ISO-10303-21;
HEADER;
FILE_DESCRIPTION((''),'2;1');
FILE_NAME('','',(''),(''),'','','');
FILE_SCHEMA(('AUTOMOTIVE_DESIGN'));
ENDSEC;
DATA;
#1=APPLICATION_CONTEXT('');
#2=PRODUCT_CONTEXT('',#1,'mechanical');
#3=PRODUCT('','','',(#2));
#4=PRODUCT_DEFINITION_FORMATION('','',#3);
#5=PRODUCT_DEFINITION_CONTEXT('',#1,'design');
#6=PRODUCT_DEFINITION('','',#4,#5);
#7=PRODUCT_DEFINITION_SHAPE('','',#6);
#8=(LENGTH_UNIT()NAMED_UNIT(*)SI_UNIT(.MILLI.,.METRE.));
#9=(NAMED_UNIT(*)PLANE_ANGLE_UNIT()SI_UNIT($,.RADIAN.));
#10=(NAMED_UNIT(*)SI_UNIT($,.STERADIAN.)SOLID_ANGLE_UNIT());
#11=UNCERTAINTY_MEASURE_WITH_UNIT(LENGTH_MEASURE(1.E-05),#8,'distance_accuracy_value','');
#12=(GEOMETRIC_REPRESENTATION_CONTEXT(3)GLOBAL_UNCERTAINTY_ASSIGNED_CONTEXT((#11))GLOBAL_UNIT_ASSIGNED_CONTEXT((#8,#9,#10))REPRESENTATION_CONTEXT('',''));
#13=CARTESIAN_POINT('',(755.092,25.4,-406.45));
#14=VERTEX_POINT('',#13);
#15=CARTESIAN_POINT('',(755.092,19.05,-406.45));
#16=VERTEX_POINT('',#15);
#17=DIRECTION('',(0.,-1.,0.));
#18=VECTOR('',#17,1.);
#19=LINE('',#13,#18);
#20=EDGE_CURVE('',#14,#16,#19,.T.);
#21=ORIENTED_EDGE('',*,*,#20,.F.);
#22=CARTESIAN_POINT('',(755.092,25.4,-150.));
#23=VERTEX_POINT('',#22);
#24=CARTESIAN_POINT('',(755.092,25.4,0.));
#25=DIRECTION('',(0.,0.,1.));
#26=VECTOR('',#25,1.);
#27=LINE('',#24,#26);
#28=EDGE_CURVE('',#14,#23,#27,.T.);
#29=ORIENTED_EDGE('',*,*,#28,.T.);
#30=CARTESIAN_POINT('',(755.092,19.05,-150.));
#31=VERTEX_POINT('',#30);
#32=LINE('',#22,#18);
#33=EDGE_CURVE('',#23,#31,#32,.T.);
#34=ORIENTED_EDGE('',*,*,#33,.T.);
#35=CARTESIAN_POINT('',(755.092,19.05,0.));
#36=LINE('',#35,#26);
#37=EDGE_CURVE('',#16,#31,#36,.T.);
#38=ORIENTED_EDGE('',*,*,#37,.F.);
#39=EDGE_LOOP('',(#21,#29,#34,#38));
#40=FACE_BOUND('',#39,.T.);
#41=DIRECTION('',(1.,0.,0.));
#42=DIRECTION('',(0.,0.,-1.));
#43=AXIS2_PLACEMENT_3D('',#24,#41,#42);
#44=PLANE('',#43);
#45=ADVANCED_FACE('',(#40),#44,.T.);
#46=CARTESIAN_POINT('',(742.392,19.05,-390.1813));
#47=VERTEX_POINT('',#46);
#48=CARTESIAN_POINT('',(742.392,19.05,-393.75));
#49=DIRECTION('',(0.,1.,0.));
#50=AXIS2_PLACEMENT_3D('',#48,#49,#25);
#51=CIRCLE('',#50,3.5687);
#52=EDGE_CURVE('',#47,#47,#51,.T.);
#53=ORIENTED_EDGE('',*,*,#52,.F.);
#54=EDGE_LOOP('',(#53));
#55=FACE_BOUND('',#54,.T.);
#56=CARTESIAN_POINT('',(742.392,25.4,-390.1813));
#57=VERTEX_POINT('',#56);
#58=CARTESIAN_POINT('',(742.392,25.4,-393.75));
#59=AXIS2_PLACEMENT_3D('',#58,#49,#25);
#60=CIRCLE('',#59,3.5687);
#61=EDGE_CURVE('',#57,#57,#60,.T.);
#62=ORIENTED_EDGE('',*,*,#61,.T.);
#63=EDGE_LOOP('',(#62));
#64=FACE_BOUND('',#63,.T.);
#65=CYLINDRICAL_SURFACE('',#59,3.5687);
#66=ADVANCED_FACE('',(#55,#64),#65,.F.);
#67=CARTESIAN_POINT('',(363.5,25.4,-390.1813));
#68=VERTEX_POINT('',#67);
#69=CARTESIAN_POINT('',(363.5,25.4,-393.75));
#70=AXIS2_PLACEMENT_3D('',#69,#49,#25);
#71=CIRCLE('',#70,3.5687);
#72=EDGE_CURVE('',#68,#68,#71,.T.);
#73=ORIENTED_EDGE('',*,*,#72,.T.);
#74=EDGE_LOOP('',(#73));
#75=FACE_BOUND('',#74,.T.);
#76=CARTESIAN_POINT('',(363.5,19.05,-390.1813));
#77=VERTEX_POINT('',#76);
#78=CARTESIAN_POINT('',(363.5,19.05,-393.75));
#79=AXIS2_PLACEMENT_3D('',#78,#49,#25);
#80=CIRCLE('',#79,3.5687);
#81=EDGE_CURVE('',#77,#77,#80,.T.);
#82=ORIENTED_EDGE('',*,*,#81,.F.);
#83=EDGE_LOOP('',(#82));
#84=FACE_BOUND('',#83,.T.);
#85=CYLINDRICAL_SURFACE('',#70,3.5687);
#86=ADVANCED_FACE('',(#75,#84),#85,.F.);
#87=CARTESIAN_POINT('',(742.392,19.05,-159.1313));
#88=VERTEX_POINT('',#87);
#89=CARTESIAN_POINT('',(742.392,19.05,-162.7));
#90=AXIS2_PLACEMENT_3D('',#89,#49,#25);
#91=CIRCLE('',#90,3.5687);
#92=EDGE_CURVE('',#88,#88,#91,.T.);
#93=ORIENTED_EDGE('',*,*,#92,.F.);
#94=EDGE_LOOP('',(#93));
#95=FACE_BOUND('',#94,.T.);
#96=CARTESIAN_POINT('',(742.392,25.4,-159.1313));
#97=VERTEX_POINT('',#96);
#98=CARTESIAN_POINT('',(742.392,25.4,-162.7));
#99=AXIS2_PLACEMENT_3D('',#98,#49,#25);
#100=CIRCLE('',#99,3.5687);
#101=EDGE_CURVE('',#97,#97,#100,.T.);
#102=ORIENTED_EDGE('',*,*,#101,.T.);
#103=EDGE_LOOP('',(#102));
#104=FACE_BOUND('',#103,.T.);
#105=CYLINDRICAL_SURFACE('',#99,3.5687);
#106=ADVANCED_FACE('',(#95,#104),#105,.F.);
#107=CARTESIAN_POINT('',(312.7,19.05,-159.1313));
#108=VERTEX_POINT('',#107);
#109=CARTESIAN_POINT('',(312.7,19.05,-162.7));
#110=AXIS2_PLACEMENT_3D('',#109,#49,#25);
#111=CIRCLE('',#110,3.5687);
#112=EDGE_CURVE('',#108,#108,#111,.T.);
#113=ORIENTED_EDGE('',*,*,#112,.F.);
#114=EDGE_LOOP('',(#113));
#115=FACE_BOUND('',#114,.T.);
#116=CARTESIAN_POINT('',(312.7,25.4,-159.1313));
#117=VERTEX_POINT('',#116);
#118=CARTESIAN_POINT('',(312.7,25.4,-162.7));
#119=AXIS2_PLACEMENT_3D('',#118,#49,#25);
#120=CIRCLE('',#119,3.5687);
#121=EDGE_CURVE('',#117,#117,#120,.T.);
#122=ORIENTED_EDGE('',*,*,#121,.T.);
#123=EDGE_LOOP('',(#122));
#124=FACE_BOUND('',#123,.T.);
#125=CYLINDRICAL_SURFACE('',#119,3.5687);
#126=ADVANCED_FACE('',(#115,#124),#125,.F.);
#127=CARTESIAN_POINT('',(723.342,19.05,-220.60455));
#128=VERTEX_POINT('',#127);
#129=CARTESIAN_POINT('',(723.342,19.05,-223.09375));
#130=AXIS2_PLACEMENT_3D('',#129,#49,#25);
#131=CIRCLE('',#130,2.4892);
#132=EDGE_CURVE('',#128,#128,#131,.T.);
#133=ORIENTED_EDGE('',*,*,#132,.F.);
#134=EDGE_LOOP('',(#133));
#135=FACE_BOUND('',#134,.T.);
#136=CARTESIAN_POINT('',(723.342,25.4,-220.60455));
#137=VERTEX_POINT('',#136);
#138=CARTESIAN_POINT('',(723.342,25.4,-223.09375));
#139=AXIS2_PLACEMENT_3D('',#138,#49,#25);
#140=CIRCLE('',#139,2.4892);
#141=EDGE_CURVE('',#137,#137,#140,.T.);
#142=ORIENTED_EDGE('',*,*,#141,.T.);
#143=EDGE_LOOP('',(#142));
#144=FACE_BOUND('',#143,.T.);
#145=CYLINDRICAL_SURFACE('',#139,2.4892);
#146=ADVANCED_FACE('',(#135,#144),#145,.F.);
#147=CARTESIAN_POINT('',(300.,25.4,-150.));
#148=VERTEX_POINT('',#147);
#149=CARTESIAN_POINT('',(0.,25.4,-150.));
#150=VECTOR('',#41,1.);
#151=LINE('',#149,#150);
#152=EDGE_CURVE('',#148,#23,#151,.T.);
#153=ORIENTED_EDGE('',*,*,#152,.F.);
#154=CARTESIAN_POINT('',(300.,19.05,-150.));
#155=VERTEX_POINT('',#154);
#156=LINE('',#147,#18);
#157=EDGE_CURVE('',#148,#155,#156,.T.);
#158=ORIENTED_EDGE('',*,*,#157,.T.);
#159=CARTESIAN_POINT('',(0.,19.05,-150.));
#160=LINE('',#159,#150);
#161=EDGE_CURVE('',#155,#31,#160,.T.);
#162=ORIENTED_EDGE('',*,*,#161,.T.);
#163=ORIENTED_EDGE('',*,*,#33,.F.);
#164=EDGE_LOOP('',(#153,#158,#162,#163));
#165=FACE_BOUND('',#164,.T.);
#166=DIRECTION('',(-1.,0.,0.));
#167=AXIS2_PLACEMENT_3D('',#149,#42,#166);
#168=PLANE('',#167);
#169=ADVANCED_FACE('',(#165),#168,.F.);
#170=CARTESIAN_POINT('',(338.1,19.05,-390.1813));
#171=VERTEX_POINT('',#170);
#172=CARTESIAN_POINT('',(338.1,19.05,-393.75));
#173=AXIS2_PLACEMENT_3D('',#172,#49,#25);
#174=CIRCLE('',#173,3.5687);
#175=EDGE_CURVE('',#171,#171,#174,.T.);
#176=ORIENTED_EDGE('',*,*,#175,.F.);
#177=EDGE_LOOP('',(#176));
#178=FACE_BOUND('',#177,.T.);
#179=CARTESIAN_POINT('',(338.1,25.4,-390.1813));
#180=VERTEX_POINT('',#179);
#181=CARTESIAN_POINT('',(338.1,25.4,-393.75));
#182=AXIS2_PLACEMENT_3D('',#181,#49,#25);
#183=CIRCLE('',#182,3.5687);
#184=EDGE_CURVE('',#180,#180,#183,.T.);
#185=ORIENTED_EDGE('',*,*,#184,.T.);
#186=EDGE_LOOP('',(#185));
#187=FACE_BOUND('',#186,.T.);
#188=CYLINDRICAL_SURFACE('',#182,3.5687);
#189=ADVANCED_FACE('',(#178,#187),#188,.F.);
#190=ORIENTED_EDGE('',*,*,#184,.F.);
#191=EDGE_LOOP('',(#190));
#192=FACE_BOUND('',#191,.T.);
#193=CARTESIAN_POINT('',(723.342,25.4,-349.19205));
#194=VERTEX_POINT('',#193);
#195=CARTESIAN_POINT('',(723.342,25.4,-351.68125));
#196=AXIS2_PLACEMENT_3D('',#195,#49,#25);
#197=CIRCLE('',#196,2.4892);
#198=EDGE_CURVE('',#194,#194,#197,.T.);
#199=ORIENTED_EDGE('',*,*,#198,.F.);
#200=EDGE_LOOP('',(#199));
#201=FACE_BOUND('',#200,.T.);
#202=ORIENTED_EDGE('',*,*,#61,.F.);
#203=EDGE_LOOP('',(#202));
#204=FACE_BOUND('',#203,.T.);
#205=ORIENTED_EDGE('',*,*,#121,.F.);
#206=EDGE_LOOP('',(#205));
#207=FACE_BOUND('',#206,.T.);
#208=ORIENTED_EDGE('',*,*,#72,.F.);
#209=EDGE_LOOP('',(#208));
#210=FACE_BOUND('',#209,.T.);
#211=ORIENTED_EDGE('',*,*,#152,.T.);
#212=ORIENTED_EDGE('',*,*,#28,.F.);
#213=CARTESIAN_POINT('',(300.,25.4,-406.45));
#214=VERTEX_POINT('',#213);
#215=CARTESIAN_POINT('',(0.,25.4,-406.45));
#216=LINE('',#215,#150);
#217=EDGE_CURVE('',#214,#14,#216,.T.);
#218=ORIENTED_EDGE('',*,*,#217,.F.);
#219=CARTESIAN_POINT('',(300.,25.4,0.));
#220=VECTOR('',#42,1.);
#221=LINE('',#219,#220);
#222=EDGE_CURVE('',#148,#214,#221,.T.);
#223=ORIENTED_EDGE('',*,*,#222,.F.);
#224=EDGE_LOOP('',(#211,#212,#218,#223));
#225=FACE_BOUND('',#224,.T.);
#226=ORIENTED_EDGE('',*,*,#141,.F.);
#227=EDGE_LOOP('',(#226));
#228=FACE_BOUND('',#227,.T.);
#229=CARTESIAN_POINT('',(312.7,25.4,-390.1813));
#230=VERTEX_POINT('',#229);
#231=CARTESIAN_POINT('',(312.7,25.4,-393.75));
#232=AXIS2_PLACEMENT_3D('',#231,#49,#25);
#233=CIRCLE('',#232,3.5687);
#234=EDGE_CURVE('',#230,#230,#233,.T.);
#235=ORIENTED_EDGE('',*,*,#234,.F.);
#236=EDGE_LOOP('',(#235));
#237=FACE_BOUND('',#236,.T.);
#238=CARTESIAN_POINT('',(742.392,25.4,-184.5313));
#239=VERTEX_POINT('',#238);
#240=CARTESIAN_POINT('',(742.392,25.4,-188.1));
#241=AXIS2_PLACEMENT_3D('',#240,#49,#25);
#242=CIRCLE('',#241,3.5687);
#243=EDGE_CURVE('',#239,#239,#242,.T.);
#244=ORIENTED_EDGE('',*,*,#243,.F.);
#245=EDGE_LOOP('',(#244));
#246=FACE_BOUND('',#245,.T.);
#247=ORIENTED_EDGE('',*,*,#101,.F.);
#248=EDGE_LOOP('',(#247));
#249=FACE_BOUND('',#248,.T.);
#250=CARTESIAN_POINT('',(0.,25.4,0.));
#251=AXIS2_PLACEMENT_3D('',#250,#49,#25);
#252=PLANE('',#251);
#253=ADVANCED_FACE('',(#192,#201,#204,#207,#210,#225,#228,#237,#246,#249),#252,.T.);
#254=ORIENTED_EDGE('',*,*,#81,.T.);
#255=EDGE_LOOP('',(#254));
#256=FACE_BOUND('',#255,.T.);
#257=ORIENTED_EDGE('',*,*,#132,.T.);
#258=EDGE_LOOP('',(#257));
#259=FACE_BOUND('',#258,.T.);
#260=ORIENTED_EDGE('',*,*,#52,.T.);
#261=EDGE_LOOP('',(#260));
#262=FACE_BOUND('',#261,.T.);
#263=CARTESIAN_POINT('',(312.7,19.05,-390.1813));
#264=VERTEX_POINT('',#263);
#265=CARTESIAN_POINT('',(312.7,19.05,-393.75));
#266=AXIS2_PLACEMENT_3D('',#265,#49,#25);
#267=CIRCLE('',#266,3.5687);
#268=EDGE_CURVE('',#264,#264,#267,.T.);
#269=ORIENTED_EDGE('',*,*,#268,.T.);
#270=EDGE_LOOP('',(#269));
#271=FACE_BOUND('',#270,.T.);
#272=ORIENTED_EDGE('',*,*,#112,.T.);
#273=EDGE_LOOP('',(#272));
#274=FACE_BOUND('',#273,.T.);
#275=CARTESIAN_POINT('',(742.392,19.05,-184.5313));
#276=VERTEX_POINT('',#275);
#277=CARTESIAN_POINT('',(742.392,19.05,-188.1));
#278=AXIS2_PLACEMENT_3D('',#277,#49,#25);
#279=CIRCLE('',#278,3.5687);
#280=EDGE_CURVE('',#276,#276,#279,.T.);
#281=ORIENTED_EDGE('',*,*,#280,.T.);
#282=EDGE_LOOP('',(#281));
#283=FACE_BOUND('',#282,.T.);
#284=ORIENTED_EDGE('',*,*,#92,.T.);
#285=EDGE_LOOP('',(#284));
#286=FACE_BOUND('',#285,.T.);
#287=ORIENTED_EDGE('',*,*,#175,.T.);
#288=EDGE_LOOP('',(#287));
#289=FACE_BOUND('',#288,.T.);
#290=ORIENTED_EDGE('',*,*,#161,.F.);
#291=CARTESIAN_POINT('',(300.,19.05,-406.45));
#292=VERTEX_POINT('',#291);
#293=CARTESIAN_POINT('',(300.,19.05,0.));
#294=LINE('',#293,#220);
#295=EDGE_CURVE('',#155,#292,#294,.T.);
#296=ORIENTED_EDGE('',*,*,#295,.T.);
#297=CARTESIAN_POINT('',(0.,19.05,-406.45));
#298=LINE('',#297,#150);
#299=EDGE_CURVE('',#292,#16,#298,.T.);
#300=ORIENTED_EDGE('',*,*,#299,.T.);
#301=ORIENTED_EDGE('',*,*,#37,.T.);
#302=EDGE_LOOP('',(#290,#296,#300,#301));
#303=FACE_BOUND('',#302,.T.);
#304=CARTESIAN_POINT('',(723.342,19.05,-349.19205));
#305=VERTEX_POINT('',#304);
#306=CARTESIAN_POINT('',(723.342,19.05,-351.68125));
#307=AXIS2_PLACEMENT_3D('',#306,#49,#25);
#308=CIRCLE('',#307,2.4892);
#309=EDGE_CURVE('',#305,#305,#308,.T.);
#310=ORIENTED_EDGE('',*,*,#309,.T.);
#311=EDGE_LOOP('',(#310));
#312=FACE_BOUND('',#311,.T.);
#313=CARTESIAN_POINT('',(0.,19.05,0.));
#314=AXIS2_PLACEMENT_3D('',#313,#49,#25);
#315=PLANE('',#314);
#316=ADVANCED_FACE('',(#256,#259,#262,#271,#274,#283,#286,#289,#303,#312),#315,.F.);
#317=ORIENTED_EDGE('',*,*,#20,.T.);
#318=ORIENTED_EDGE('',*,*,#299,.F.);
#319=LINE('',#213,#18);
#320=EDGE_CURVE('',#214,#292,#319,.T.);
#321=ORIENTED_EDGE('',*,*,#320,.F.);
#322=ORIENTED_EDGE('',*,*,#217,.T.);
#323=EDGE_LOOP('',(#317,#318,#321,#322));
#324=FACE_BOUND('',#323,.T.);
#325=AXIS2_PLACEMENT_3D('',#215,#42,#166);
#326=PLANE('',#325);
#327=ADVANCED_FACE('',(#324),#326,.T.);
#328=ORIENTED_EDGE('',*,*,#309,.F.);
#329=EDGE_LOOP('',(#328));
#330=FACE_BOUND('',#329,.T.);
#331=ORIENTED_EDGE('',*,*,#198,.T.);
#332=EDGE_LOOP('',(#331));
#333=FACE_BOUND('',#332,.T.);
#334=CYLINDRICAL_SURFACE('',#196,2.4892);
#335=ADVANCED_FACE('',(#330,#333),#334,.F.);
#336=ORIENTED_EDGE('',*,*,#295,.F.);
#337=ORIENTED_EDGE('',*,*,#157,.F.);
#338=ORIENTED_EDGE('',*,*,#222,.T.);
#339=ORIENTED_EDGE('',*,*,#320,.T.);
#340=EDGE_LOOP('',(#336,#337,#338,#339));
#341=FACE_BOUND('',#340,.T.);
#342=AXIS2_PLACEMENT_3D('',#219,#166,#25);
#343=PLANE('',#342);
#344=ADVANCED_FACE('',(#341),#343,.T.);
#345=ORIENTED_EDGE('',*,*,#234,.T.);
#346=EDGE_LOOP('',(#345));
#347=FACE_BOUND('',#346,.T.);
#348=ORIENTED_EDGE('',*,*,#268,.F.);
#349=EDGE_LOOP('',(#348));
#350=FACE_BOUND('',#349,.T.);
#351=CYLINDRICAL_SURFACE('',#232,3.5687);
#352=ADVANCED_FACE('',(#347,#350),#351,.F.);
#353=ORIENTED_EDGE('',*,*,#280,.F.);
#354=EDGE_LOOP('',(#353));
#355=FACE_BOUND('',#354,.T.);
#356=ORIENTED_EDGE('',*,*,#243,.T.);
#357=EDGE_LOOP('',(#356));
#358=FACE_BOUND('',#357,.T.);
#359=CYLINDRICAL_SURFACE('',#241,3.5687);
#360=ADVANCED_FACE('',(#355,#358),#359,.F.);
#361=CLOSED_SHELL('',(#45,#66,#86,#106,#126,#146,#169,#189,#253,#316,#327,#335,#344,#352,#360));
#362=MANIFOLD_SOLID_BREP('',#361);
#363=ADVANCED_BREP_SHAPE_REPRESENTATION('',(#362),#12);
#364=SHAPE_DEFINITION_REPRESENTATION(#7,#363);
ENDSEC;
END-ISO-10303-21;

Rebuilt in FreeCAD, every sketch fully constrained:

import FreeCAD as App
import Part
import Sketcher
Q = App.Units.Quantity


def edges_at(feature, points):
    """Names of the edges that pass closest to the given points."""
    edges = feature.Shape.Edges
    near = lambda p: min(range(len(edges)), key=lambda i: edges[i].distToShape(Part.Vertex(*p))[0])
    return sorted({f"Edge{near(p) + 1}" for p in points})


def add_polygon(sketch, points):
    """Adds a closed chain of lines whose ends are joined by coincident constraints."""
    first, n = sketch.GeometryCount, len(points)
    for a, b in zip(points, points[1:] + points[:1]):
        sketch.addGeometry(Part.LineSegment(App.Vector(*a, 0), App.Vector(*b, 0)), False)
    for i in range(n):
        sketch.addConstraint(Sketcher.Constraint("Coincident", first + i, 2, first + (i + 1) % n, 1))

doc = App.newDocument("Part")
body = doc.addObject("PartDesign::Body", "Body")

sketch1 = doc.addObject("Sketcher::SketchObject", "Sketch")
body.addObject(sketch1)
sketch1.AttachmentSupport = (doc.XZ_Plane, [""])
sketch1.MapMode = "FlatFace"
sketch1.AttachmentOffset = App.Placement(App.Vector(0, 0, -0.75 * 25.4), App.Rotation())
add_polygon(sketch1, [(-300, -406.45), (-300, -150), (300, -150), (300, -406.45)])
sketch1.addConstraint(Sketcher.Constraint("Vertical", 0))
sketch1.addConstraint(Sketcher.Constraint("Horizontal", 1))
sketch1.addConstraint(Sketcher.Constraint("Vertical", 2))
sketch1.addConstraint(Sketcher.Constraint("Horizontal", 3))
sketch1.addConstraint(Sketcher.Constraint("DistanceX", 1, 1, 1, 2, Q("600 mm")))
sketch1.addConstraint(Sketcher.Constraint("DistanceY", 0, 1, 0, 2, Q("256.45 mm")))
sketch1.addConstraint(Sketcher.Constraint("DistanceX", 0, 2, -1, 1, Q("300 mm")))
sketch1.addConstraint(Sketcher.Constraint("DistanceY", 0, 2, -1, 1, Q("150 mm")))
pad1 = doc.addObject("PartDesign::Pad", "Pad")
body.addObject(pad1)
pad1.Profile = sketch1
pad1.Length = Q("0.25 in")
pad1.Reversed = True

sketch2 = doc.addObject("Sketcher::SketchObject", "Sketch001")
body.addObject(sketch2)
sketch2.AttachmentSupport = (doc.YZ_Plane, [""])
sketch2.MapMode = "FlatFace"
sketch2.AttachmentOffset = App.Placement(App.Vector(0, 0, -287.3), App.Rotation())
add_polygon(sketch2, [(19.05, -393.75), (25.4, -393.75), (25.4, -390.1813), (19.05, -390.1813)])
sketch2.addGeometry(Part.LineSegment(App.Vector(25.4, -393.75, 0), App.Vector(19.05, -393.75, 0)), True)
sketch2.addConstraint(Sketcher.Constraint("Horizontal", 0))
sketch2.addConstraint(Sketcher.Constraint("Vertical", 1))
sketch2.addConstraint(Sketcher.Constraint("Horizontal", 2))
sketch2.addConstraint(Sketcher.Constraint("Vertical", 3))
sketch2.addConstraint(Sketcher.Constraint("Horizontal", 4))
sketch2.addConstraint(Sketcher.Constraint("Coincident", 4, 1, 0, 2))
sketch2.addConstraint(Sketcher.Constraint("Vertical", 2, 2, 4, 2))
sketch2.addConstraint(Sketcher.Constraint("DistanceX", -1, 1, 0, 2, Q("1 in")))
sketch2.addConstraint(Sketcher.Constraint("DistanceX", 0, 1, 0, 2, Q("0.25 in")))
sketch2.addConstraint(Sketcher.Constraint("DistanceY", 1, 1, 1, 2, Q("0.1405 in")))
sketch2.addConstraint(Sketcher.Constraint("DistanceY", 0, 2, -1, 1, Q("393.75 mm")))
groove = doc.addObject("PartDesign::Groove", "Groove")
body.addObject(groove)
groove.Profile = sketch2
groove.ReferenceAxis = (sketch2, ["Axis0"])
groove.Angle = 360
doc.recompute()

linearpattern = doc.addObject("PartDesign::LinearPattern", "LinearPattern")
body.addObject(linearpattern)
linearpattern.Originals = [groove]
linearpattern.Direction = (doc.Z_Axis, [""])
linearpattern.Mode = "offset"
linearpattern.Offset = 231.05
linearpattern.Occurrences = 2
body.Tip = linearpattern
doc.recompute()

datumline = doc.addObject("PartDesign::Line", "DatumLine")
body.addObject(datumline)
datumline.Placement = App.Placement(App.Vector(0, 0, 0), App.Rotation(App.Vector(0, 0, 1), App.Vector(0.921750647, 0, 0.387783115)))
linearpattern2 = doc.addObject("PartDesign::LinearPattern", "LinearPattern001")
body.addObject(linearpattern2)
linearpattern2.Originals = [groove]
linearpattern2.Direction = (datumline, [""])
linearpattern2.Mode = "offset"
linearpattern2.Offset = 595.822744
linearpattern2.Occurrences = 2
body.Tip = linearpattern2
doc.recompute()

datumline2 = doc.addObject("PartDesign::Line", "DatumLine001")
body.addObject(datumline2)
datumline2.Placement = App.Placement(App.Vector(0, 0, 0), App.Rotation(App.Vector(0, 0, 1), App.Vector(0.927801447, 0, 0.373074355)))
linearpattern3 = doc.addObject("PartDesign::LinearPattern", "LinearPattern002")
body.addObject(linearpattern3)
linearpattern3.Originals = [groove]
linearpattern3.Direction = (datumline2, [""])
linearpattern3.Mode = "offset"
linearpattern3.Offset = 619.313541
linearpattern3.Occurrences = 2
body.Tip = linearpattern3
doc.recompute()

linearpattern4 = doc.addObject("PartDesign::LinearPattern", "LinearPattern003")
body.addObject(linearpattern4)
linearpattern4.Originals = [groove]
linearpattern4.Direction = (doc.X_Axis, [""])
linearpattern4.Mode = "offset"
linearpattern4.Offset = 523.8
linearpattern4.Occurrences = 2
body.Tip = linearpattern4
doc.recompute()

linearpattern5 = doc.addObject("PartDesign::LinearPattern", "LinearPattern004")
body.addObject(linearpattern5)
linearpattern5.Originals = [groove]
linearpattern5.Direction = (doc.X_Axis, [""])
linearpattern5.Mode = "offset"
linearpattern5.Offset = 549.2
linearpattern5.Occurrences = 2
body.Tip = linearpattern5
doc.recompute()

linearpattern6 = doc.addObject("PartDesign::LinearPattern", "LinearPattern005")
body.addObject(linearpattern6)
linearpattern6.Originals = [groove]
linearpattern6.Direction = (doc.X_Axis, [""])
linearpattern6.Mode = "offset"
linearpattern6.Offset = 574.6
linearpattern6.Occurrences = 2
body.Tip = linearpattern6

sketch3 = doc.addObject("Sketcher::SketchObject", "Sketch002")
body.addObject(sketch3)
sketch3.AttachmentSupport = (doc.YZ_Plane, [""])
sketch3.MapMode = "FlatFace"
sketch3.AttachmentOffset = App.Placement(App.Vector(0, 0, -268.25), App.Rotation())
add_polygon(sketch3, [(19.05, -351.68125), (25.4, -351.68125), (25.4, -349.19205), (19.05, -349.19205)])
sketch3.addGeometry(Part.LineSegment(App.Vector(25.4, -351.68125, 0), App.Vector(19.05, -351.68125, 0)), True)
sketch3.addConstraint(Sketcher.Constraint("Horizontal", 0))
sketch3.addConstraint(Sketcher.Constraint("Vertical", 1))
sketch3.addConstraint(Sketcher.Constraint("Horizontal", 2))
sketch3.addConstraint(Sketcher.Constraint("Vertical", 3))
sketch3.addConstraint(Sketcher.Constraint("Horizontal", 4))
sketch3.addConstraint(Sketcher.Constraint("Coincident", 4, 1, 0, 2))
sketch3.addConstraint(Sketcher.Constraint("Vertical", 2, 2, 4, 2))
sketch3.addConstraint(Sketcher.Constraint("DistanceX", -1, 1, 0, 2, Q("1 in")))
sketch3.addConstraint(Sketcher.Constraint("DistanceX", 0, 1, 0, 2, Q("0.25 in")))
sketch3.addConstraint(Sketcher.Constraint("DistanceY", 1, 1, 1, 2, Q("0.098 in")))
sketch3.addConstraint(Sketcher.Constraint("DistanceY", 0, 2, -1, 1, Q("351.68125 mm")))
groove2 = doc.addObject("PartDesign::Groove", "Groove001")
body.addObject(groove2)
groove2.Profile = sketch3
groove2.ReferenceAxis = (sketch3, ["Axis0"])
groove2.Angle = 360
doc.recompute()

linearpattern7 = doc.addObject("PartDesign::LinearPattern", "LinearPattern006")
body.addObject(linearpattern7)
linearpattern7.Originals = [groove2]
linearpattern7.Direction = (doc.Z_Axis, [""])
linearpattern7.Mode = "offset"
linearpattern7.Offset = Q("5.0625 in")
linearpattern7.Occurrences = 2
body.Tip = linearpattern7
body2 = doc.addObject("PartDesign::Body", "Body001")

sketch4 = doc.addObject("Sketcher::SketchObject", "Sketch003")
body2.addObject(sketch4)
sketch4.AttachmentSupport = (doc.getObject("XZ_Plane001"), [""])
sketch4.MapMode = "FlatFace"
sketch4.AttachmentOffset = App.Placement(App.Vector(0, 0, -0.75 * 25.4), App.Rotation())
add_polygon(sketch4, [(300, -406.45), (300, -150), (755.092, -150), (755.092, -406.45)])
sketch4.addConstraint(Sketcher.Constraint("Vertical", 0))
sketch4.addConstraint(Sketcher.Constraint("Horizontal", 1))
sketch4.addConstraint(Sketcher.Constraint("Vertical", 2))
sketch4.addConstraint(Sketcher.Constraint("Horizontal", 3))
sketch4.addConstraint(Sketcher.Constraint("DistanceX", 1, 1, 1, 2, Q("455.092 mm")))
sketch4.addConstraint(Sketcher.Constraint("DistanceY", 0, 1, 0, 2, Q("256.45 mm")))
sketch4.addConstraint(Sketcher.Constraint("DistanceX", -1, 1, 0, 2, Q("300 mm")))
sketch4.addConstraint(Sketcher.Constraint("DistanceY", 0, 2, -1, 1, Q("150 mm")))
pad2 = doc.addObject("PartDesign::Pad", "Pad001")
body2.addObject(pad2)
pad2.Profile = sketch4
pad2.Length = Q("0.25 in")
pad2.Reversed = True

sketch5 = doc.addObject("Sketcher::SketchObject", "Sketch004")
body2.addObject(sketch5)
sketch5.AttachmentSupport = (doc.getObject("YZ_Plane001"), [""])
sketch5.MapMode = "FlatFace"
sketch5.AttachmentOffset = App.Placement(App.Vector(0, 0, 312.7), App.Rotation())
add_polygon(sketch5, [(19.05, -393.75), (25.4, -393.75), (25.4, -390.1813), (19.05, -390.1813)])
sketch5.addGeometry(Part.LineSegment(App.Vector(25.4, -393.75, 0), App.Vector(19.05, -393.75, 0)), True)
sketch5.addConstraint(Sketcher.Constraint("Horizontal", 0))
sketch5.addConstraint(Sketcher.Constraint("Vertical", 1))
sketch5.addConstraint(Sketcher.Constraint("Horizontal", 2))
sketch5.addConstraint(Sketcher.Constraint("Vertical", 3))
sketch5.addConstraint(Sketcher.Constraint("Horizontal", 4))
sketch5.addConstraint(Sketcher.Constraint("Coincident", 4, 1, 0, 2))
sketch5.addConstraint(Sketcher.Constraint("Vertical", 2, 2, 4, 2))
sketch5.addConstraint(Sketcher.Constraint("DistanceX", -1, 1, 0, 2, Q("1 in")))
sketch5.addConstraint(Sketcher.Constraint("DistanceX", 0, 1, 0, 2, Q("0.25 in")))
sketch5.addConstraint(Sketcher.Constraint("DistanceY", 1, 1, 1, 2, Q("0.1405 in")))
sketch5.addConstraint(Sketcher.Constraint("DistanceY", 0, 2, -1, 1, Q("393.75 mm")))
groove3 = doc.addObject("PartDesign::Groove", "Groove002")
body2.addObject(groove3)
groove3.Profile = sketch5
groove3.ReferenceAxis = (sketch5, ["Axis0"])
groove3.Angle = 360
doc.recompute()

linearpattern8 = doc.addObject("PartDesign::LinearPattern", "LinearPattern007")
body2.addObject(linearpattern8)
linearpattern8.Originals = [groove3]
linearpattern8.Direction = (doc.getObject("X_Axis001"), [""])
linearpattern8.Mode = "offset"
linearpattern8.Offset = Q("1 in")
linearpattern8.Occurrences = 2
body2.Tip = linearpattern8
doc.recompute()

linearpattern9 = doc.addObject("PartDesign::LinearPattern", "LinearPattern008")
body2.addObject(linearpattern9)
linearpattern9.Originals = [groove3]
linearpattern9.Direction = (doc.getObject("X_Axis001"), [""])
linearpattern9.Mode = "offset"
linearpattern9.Offset = Q("2 in")
linearpattern9.Occurrences = 2
body2.Tip = linearpattern9
doc.recompute()

linearpattern10 = doc.addObject("PartDesign::LinearPattern", "LinearPattern009")
body2.addObject(linearpattern10)
linearpattern10.Originals = [groove3]
linearpattern10.Direction = (doc.getObject("Z_Axis001"), [""])
linearpattern10.Mode = "offset"
linearpattern10.Offset = 231.05
linearpattern10.Occurrences = 2
body2.Tip = linearpattern10
doc.recompute()

datumline3 = doc.addObject("PartDesign::Line", "DatumLine002")
body2.addObject(datumline3)
datumline3.Placement = App.Placement(App.Vector(0, 0, 0), App.Rotation(App.Vector(0, 0, 1), App.Vector(0.880746986, 0, 0.473587107)))
linearpattern11 = doc.addObject("PartDesign::LinearPattern", "LinearPattern010")
body2.addObject(linearpattern11)
linearpattern11.Originals = [groove3]
linearpattern11.Direction = (datumline3, [""])
linearpattern11.Mode = "offset"
linearpattern11.Offset = 487.872235
linearpattern11.Occurrences = 2
body2.Tip = linearpattern11
doc.recompute()

datumline4 = doc.addObject("PartDesign::Line", "DatumLine003")
body2.addObject(datumline4)
datumline4.Placement = App.Placement(App.Vector(0, 0, 0), App.Rotation(App.Vector(0, 0, 1), App.Vector(0.902015605, 0, 0.431703427)))
linearpattern12 = doc.addObject("PartDesign::LinearPattern", "LinearPattern011")
body2.addObject(linearpattern12)
linearpattern12.Originals = [groove3]
linearpattern12.Direction = (datumline4, [""])
linearpattern12.Mode = "offset"
linearpattern12.Offset = 476.368699
linearpattern12.Occurrences = 2
body2.Tip = linearpattern12
doc.recompute()

linearpattern13 = doc.addObject("PartDesign::LinearPattern", "LinearPattern012")
body2.addObject(linearpattern13)
linearpattern13.Originals = [groove3]
linearpattern13.Direction = (doc.getObject("X_Axis001"), [""])
linearpattern13.Mode = "offset"
linearpattern13.Offset = 429.692
linearpattern13.Occurrences = 2
body2.Tip = linearpattern13

sketch6 = doc.addObject("Sketcher::SketchObject", "Sketch005")
body2.addObject(sketch6)
sketch6.AttachmentSupport = (doc.getObject("YZ_Plane001"), [""])
sketch6.MapMode = "FlatFace"
sketch6.AttachmentOffset = App.Placement(App.Vector(0, 0, 723.342), App.Rotation())
add_polygon(sketch6, [(19.05, -351.68125), (25.4, -351.68125), (25.4, -349.19205), (19.05, -349.19205)])
sketch6.addGeometry(Part.LineSegment(App.Vector(25.4, -351.68125, 0), App.Vector(19.05, -351.68125, 0)), True)
sketch6.addConstraint(Sketcher.Constraint("Horizontal", 0))
sketch6.addConstraint(Sketcher.Constraint("Vertical", 1))
sketch6.addConstraint(Sketcher.Constraint("Horizontal", 2))
sketch6.addConstraint(Sketcher.Constraint("Vertical", 3))
sketch6.addConstraint(Sketcher.Constraint("Horizontal", 4))
sketch6.addConstraint(Sketcher.Constraint("Coincident", 4, 1, 0, 2))
sketch6.addConstraint(Sketcher.Constraint("Vertical", 2, 2, 4, 2))
sketch6.addConstraint(Sketcher.Constraint("DistanceX", -1, 1, 0, 2, Q("1 in")))
sketch6.addConstraint(Sketcher.Constraint("DistanceX", 0, 1, 0, 2, Q("0.25 in")))
sketch6.addConstraint(Sketcher.Constraint("DistanceY", 1, 1, 1, 2, Q("0.098 in")))
sketch6.addConstraint(Sketcher.Constraint("DistanceY", 0, 2, -1, 1, Q("351.68125 mm")))
groove4 = doc.addObject("PartDesign::Groove", "Groove003")
body2.addObject(groove4)
groove4.Profile = sketch6
groove4.ReferenceAxis = (sketch6, ["Axis0"])
groove4.Angle = 360
doc.recompute()

linearpattern14 = doc.addObject("PartDesign::LinearPattern", "LinearPattern013")
body2.addObject(linearpattern14)
linearpattern14.Originals = [groove4]
linearpattern14.Direction = (doc.getObject("Z_Axis001"), [""])
linearpattern14.Mode = "offset"
linearpattern14.Offset = Q("5.0625 in")
linearpattern14.Occurrences = 2
body2.Tip = linearpattern14
body3 = doc.addObject("PartDesign::Body", "Body002")

sketch7 = doc.addObject("Sketcher::SketchObject", "Sketch006")
body3.addObject(sketch7)
sketch7.AttachmentSupport = (doc.getObject("XZ_Plane002"), [""])
sketch7.MapMode = "FlatFace"
sketch7.AttachmentOffset = App.Placement(App.Vector(0, 0, -0.75 * 25.4), App.Rotation())
add_polygon(sketch7, [(300, -150), (300, 150), (755.092, 150), (755.092, -150)])
sketch7.addConstraint(Sketcher.Constraint("Vertical", 0))
sketch7.addConstraint(Sketcher.Constraint("Horizontal", 1))
sketch7.addConstraint(Sketcher.Constraint("Vertical", 2))
sketch7.addConstraint(Sketcher.Constraint("Horizontal", 3))
sketch7.addConstraint(Sketcher.Constraint("DistanceX", 1, 1, 1, 2, Q("455.092 mm")))
sketch7.addConstraint(Sketcher.Constraint("DistanceY", 0, 1, 0, 2, Q("300 mm")))
sketch7.addConstraint(Sketcher.Constraint("DistanceX", -1, 1, 0, 2, Q("300 mm")))
sketch7.addConstraint(Sketcher.Constraint("DistanceY", -1, 1, 0, 2, Q("150 mm")))
pad3 = doc.addObject("PartDesign::Pad", "Pad002")
body3.addObject(pad3)
pad3.Profile = sketch7
pad3.Length = Q("0.25 in")
pad3.Reversed = True

sketch8 = doc.addObject("Sketcher::SketchObject", "Sketch007")
body3.addObject(sketch8)
sketch8.AttachmentSupport = (doc.getObject("YZ_Plane002"), [""])
sketch8.MapMode = "FlatFace"
sketch8.AttachmentOffset = App.Placement(App.Vector(0, 0, 312.7), App.Rotation())
add_polygon(sketch8, [(19.05, -111.9), (25.4, -111.9), (25.4, -108.3313), (19.05, -108.3313)])
sketch8.addGeometry(Part.LineSegment(App.Vector(25.4, -111.9, 0), App.Vector(19.05, -111.9, 0)), True)
sketch8.addConstraint(Sketcher.Constraint("Horizontal", 0))
sketch8.addConstraint(Sketcher.Constraint("Vertical", 1))
sketch8.addConstraint(Sketcher.Constraint("Horizontal", 2))
sketch8.addConstraint(Sketcher.Constraint("Vertical", 3))
sketch8.addConstraint(Sketcher.Constraint("Horizontal", 4))
sketch8.addConstraint(Sketcher.Constraint("Coincident", 4, 1, 0, 2))
sketch8.addConstraint(Sketcher.Constraint("Vertical", 2, 2, 4, 2))
sketch8.addConstraint(Sketcher.Constraint("DistanceX", -1, 1, 0, 2, Q("1 in")))
sketch8.addConstraint(Sketcher.Constraint("DistanceX", 0, 1, 0, 2, Q("0.25 in")))
sketch8.addConstraint(Sketcher.Constraint("DistanceY", 1, 1, 1, 2, Q("0.1405 in")))
sketch8.addConstraint(Sketcher.Constraint("DistanceY", 0, 2, -1, 1, Q("111.9 mm")))
groove5 = doc.addObject("PartDesign::Groove", "Groove004")
body3.addObject(groove5)
groove5.Profile = sketch8
groove5.ReferenceAxis = (sketch8, ["Axis0"])
groove5.Angle = 360
doc.recompute()

linearpattern15 = doc.addObject("PartDesign::LinearPattern", "LinearPattern014")
body3.addObject(linearpattern15)
linearpattern15.Originals = [groove5]
linearpattern15.Direction = (doc.getObject("Z_Axis002"), [""])
linearpattern15.Mode = "offset"
linearpattern15.Offset = Q("1 in")
linearpattern15.Occurrences = 2
linearpattern15.Reversed = True
body3.Tip = linearpattern15
doc.recompute()

linearpattern16 = doc.addObject("PartDesign::LinearPattern", "LinearPattern015")
body3.addObject(linearpattern16)
linearpattern16.Originals = [groove5]
linearpattern16.Direction = (doc.getObject("Z_Axis002"), [""])
linearpattern16.Mode = "offset"
linearpattern16.Offset = 249.2
linearpattern16.Occurrences = 2
body3.Tip = linearpattern16
doc.recompute()

datumline5 = doc.addObject("PartDesign::Line", "DatumLine004")
body3.addObject(datumline5)
datumline5.Placement = App.Placement(App.Vector(0, 0, 0), App.Rotation(App.Vector(0, 0, 1), App.Vector(0.865049851, 0, 0.501685912)))
linearpattern17 = doc.addObject("PartDesign::LinearPattern", "LinearPattern016")
body3.addObject(linearpattern17)
linearpattern17.Originals = [groove5]
linearpattern17.Direction = (datumline5, [""])
linearpattern17.Mode = "offset"
linearpattern17.Offset = 496.72513
linearpattern17.Occurrences = 2
body3.Tip = linearpattern17
doc.recompute()

linearpattern18 = doc.addObject("PartDesign::LinearPattern", "LinearPattern017")
body3.addObject(linearpattern18)
linearpattern18.Originals = [groove5]
linearpattern18.Direction = (doc.getObject("X_Axis002"), [""])
linearpattern18.Mode = "offset"
linearpattern18.Offset = 429.692
linearpattern18.Occurrences = 2
body3.Tip = linearpattern18
doc.recompute()

datumline6 = doc.addObject("PartDesign::Line", "DatumLine005")
body3.addObject(datumline6)
datumline6.Placement = App.Placement(App.Vector(0, 0, 0), App.Rotation(App.Vector(0, 0, 1), App.Vector(0.998257445, 0, -0.059009102)))
linearpattern19 = doc.addObject("PartDesign::LinearPattern", "LinearPattern018")
body3.addObject(linearpattern19)
linearpattern19.Originals = [groove5]
linearpattern19.Direction = (datumline6, [""])
linearpattern19.Mode = "offset"
linearpattern19.Offset = 430.442069
linearpattern19.Occurrences = 2
body3.Tip = linearpattern19
body4 = doc.addObject("PartDesign::Body", "Body003")

sketch9 = doc.addObject("Sketcher::SketchObject", "Sketch008")
body4.addObject(sketch9)
sketch9.AttachmentSupport = (doc.getObject("XZ_Plane003"), [""])
sketch9.MapMode = "FlatFace"
sketch9.AttachmentOffset = App.Placement(App.Vector(0, 0, -1 * 25.4), App.Rotation())
add_polygon(sketch9, [(249.2, -175.4), (249.2, -150), (300, -150), (300, -99.2), (325.4, -99.2), (325.4, -175.4)])
sketch9.addGeometry(Part.Circle(App.Vector(312.7, -111.9, 0), App.Vector(0, 0, 1), 3.5687), False)
sketch9.addGeometry(Part.Circle(App.Vector(312.7, -137.3, 0), App.Vector(0, 0, 1), 3.5687), False)
sketch9.addGeometry(Part.Circle(App.Vector(312.7, -162.7, 0), App.Vector(0, 0, 1), 3.5687), False)
sketch9.addGeometry(Part.Circle(App.Vector(287.3, -162.7, 0), App.Vector(0, 0, 1), 3.5687), False)
sketch9.addGeometry(Part.Circle(App.Vector(261.9, -162.7, 0), App.Vector(0, 0, 1), 3.5687), False)
sketch9.addConstraint(Sketcher.Constraint("Vertical", 0))
sketch9.addConstraint(Sketcher.Constraint("Horizontal", 1))
sketch9.addConstraint(Sketcher.Constraint("Vertical", 2))
sketch9.addConstraint(Sketcher.Constraint("Horizontal", 3))
sketch9.addConstraint(Sketcher.Constraint("Vertical", 4))
sketch9.addConstraint(Sketcher.Constraint("Horizontal", 5))
sketch9.addConstraint(Sketcher.Constraint("Equal", 6, 7))
sketch9.addConstraint(Sketcher.Constraint("Equal", 7, 8))
sketch9.addConstraint(Sketcher.Constraint("Equal", 8, 9))
sketch9.addConstraint(Sketcher.Constraint("Equal", 9, 10))
sketch9.addConstraint(Sketcher.Constraint("Horizontal", 8, 3, 9, 3))
sketch9.addConstraint(Sketcher.Constraint("Horizontal", 9, 3, 10, 3))
sketch9.addConstraint(Sketcher.Constraint("Vertical", 6, 3, 7, 3))
sketch9.addConstraint(Sketcher.Constraint("Vertical", 7, 3, 8, 3))
sketch9.addConstraint(Sketcher.Constraint("Equal", 3, 0))
sketch9.addConstraint(Sketcher.Constraint("Equal", 1, 2))
sketch9.addConstraint(Sketcher.Constraint("DistanceX", 1, 1, 1, 2, Q("2 in")))
sketch9.addConstraint(Sketcher.Constraint("DistanceX", 3, 1, 3, 2, Q("1 in")))
sketch9.addConstraint(Sketcher.Constraint("Diameter", 6, Q("0.281 in")))
sketch9.addConstraint(Sketcher.Constraint("DistanceY", 7, 3, 6, 3, Q("1 in")))
sketch9.addConstraint(Sketcher.Constraint("DistanceY", 8, 3, 7, 3, Q("1 in")))
sketch9.addConstraint(Sketcher.Constraint("DistanceX", 9, 3, 8, 3, Q("1 in")))
sketch9.addConstraint(Sketcher.Constraint("DistanceX", 10, 3, 9, 3, Q("1 in")))
sketch9.addConstraint(Sketcher.Constraint("DistanceX", 0, 2, 10, 3, Q("0.5 in")))
sketch9.addConstraint(Sketcher.Constraint("DistanceY", 10, 3, 0, 2, Q("0.5 in")))
sketch9.addConstraint(Sketcher.Constraint("DistanceX", -1, 1, 6, 3, Q("312.7 mm")))
sketch9.addConstraint(Sketcher.Constraint("DistanceY", 6, 3, -1, 1, Q("111.9 mm")))
pad4 = doc.addObject("PartDesign::Pad", "Pad003")
body4.addObject(pad4)
pad4.Profile = sketch9
pad4.Length = Q("0.25 in")
pad4.Reversed = True
doc.recompute()

fillet = doc.addObject("PartDesign::Fillet", "Fillet")
body4.addObject(fillet)
fillet.Base = (pad4, edges_at(pad4, [
    (249.2, 28.575, -150),
    (249.2, 28.575, -175.4),
    (325.4, 28.575, -175.4),
    (325.4, 28.575, -99.2),
    (300, 28.575, -99.2),
]))
fillet.Radius = Q("0.25 in")
body5 = doc.addObject("PartDesign::Body", "Body004")

sketch10 = doc.addObject("Sketcher::SketchObject", "Sketch009")
body5.addObject(sketch10)
sketch10.AttachmentSupport = (doc.getObject("XZ_Plane004"), [""])
sketch10.MapMode = "FlatFace"
sketch10.AttachmentOffset = App.Placement(App.Vector(0, 0, -1 * 25.4), App.Rotation())
add_polygon(sketch10, [(223.8, -406.45), (223.8, -381.05), (376.2, -381.05), (376.2, -406.45)])
sketch10.addGeometry(Part.Circle(App.Vector(236.5, -393.75, 0), App.Vector(0, 0, 1), 3.5687), False)
sketch10.addGeometry(Part.Circle(App.Vector(261.9, -393.75, 0), App.Vector(0, 0, 1), 3.5687), False)
sketch10.addGeometry(Part.Circle(App.Vector(287.3, -393.75, 0), App.Vector(0, 0, 1), 3.5687), False)
sketch10.addGeometry(Part.Circle(App.Vector(312.7, -393.75, 0), App.Vector(0, 0, 1), 3.5687), False)
sketch10.addGeometry(Part.Circle(App.Vector(338.1, -393.75, 0), App.Vector(0, 0, 1), 3.5687), False)
sketch10.addGeometry(Part.Circle(App.Vector(363.5, -393.75, 0), App.Vector(0, 0, 1), 3.5687), False)
sketch10.addConstraint(Sketcher.Constraint("Vertical", 0))
sketch10.addConstraint(Sketcher.Constraint("Horizontal", 1))
sketch10.addConstraint(Sketcher.Constraint("Vertical", 2))
sketch10.addConstraint(Sketcher.Constraint("Horizontal", 3))
sketch10.addConstraint(Sketcher.Constraint("Equal", 4, 5))
sketch10.addConstraint(Sketcher.Constraint("Equal", 5, 6))
sketch10.addConstraint(Sketcher.Constraint("Equal", 6, 7))
sketch10.addConstraint(Sketcher.Constraint("Equal", 7, 8))
sketch10.addConstraint(Sketcher.Constraint("Equal", 8, 9))
sketch10.addConstraint(Sketcher.Constraint("Horizontal", 4, 3, 5, 3))
sketch10.addConstraint(Sketcher.Constraint("Horizontal", 5, 3, 6, 3))
sketch10.addConstraint(Sketcher.Constraint("Horizontal", 6, 3, 7, 3))
sketch10.addConstraint(Sketcher.Constraint("Horizontal", 7, 3, 8, 3))
sketch10.addConstraint(Sketcher.Constraint("Horizontal", 8, 3, 9, 3))
sketch10.addConstraint(Sketcher.Constraint("DistanceX", 1, 1, 1, 2, Q("6 in")))
sketch10.addConstraint(Sketcher.Constraint("DistanceY", 0, 1, 0, 2, Q("1 in")))
sketch10.addConstraint(Sketcher.Constraint("Diameter", 4, Q("0.281 in")))
sketch10.addConstraint(Sketcher.Constraint("DistanceX", 4, 3, 5, 3, Q("1 in")))
sketch10.addConstraint(Sketcher.Constraint("DistanceX", 5, 3, 6, 3, Q("1 in")))
sketch10.addConstraint(Sketcher.Constraint("DistanceX", 6, 3, 7, 3, Q("1 in")))
sketch10.addConstraint(Sketcher.Constraint("DistanceX", 7, 3, 8, 3, Q("1 in")))
sketch10.addConstraint(Sketcher.Constraint("DistanceX", 8, 3, 9, 3, Q("1 in")))
sketch10.addConstraint(Sketcher.Constraint("DistanceX", 0, 2, 4, 3, Q("0.5 in")))
sketch10.addConstraint(Sketcher.Constraint("DistanceY", 4, 3, 0, 2, Q("0.5 in")))
sketch10.addConstraint(Sketcher.Constraint("DistanceX", -1, 1, 4, 3, Q("236.5 mm")))
sketch10.addConstraint(Sketcher.Constraint("DistanceY", 4, 3, -1, 1, Q("393.75 mm")))
pad5 = doc.addObject("PartDesign::Pad", "Pad004")
body5.addObject(pad5)
pad5.Profile = sketch10
pad5.Length = Q("0.25 in")
pad5.Reversed = True
body6 = doc.addObject("PartDesign::Body", "Body005")

sketch11 = doc.addObject("Sketcher::SketchObject", "Sketch010")
body6.addObject(sketch11)
sketch11.AttachmentSupport = (doc.getObject("XZ_Plane005"), [""])
sketch11.MapMode = "FlatFace"
sketch11.AttachmentOffset = App.Placement(App.Vector(0, 0, -1 * 25.4), App.Rotation())
add_polygon(sketch11, [(729.692, -200.8), (729.692, -99.2), (755.092, -99.2), (755.092, -200.8)])
sketch11.addGeometry(Part.Circle(App.Vector(742.392, -111.9, 0), App.Vector(0, 0, 1), 3.5687), False)
sketch11.addGeometry(Part.Circle(App.Vector(742.392, -137.3, 0), App.Vector(0, 0, 1), 3.5687), False)
sketch11.addGeometry(Part.Circle(App.Vector(742.392, -162.7, 0), App.Vector(0, 0, 1), 3.5687), False)
sketch11.addGeometry(Part.Circle(App.Vector(742.392, -188.1, 0), App.Vector(0, 0, 1), 3.5687), False)
sketch11.addConstraint(Sketcher.Constraint("Vertical", 0))
sketch11.addConstraint(Sketcher.Constraint("Horizontal", 1))
sketch11.addConstraint(Sketcher.Constraint("Vertical", 2))
sketch11.addConstraint(Sketcher.Constraint("Horizontal", 3))
sketch11.addConstraint(Sketcher.Constraint("Equal", 4, 5))
sketch11.addConstraint(Sketcher.Constraint("Equal", 5, 6))
sketch11.addConstraint(Sketcher.Constraint("Equal", 6, 7))
sketch11.addConstraint(Sketcher.Constraint("Vertical", 4, 3, 5, 3))
sketch11.addConstraint(Sketcher.Constraint("Vertical", 5, 3, 6, 3))
sketch11.addConstraint(Sketcher.Constraint("Vertical", 6, 3, 7, 3))
sketch11.addConstraint(Sketcher.Constraint("DistanceX", 1, 1, 1, 2, Q("1 in")))
sketch11.addConstraint(Sketcher.Constraint("DistanceY", 0, 1, 0, 2, Q("4 in")))
sketch11.addConstraint(Sketcher.Constraint("Diameter", 4, Q("0.281 in")))
sketch11.addConstraint(Sketcher.Constraint("DistanceY", 5, 3, 4, 3, Q("1 in")))
sketch11.addConstraint(Sketcher.Constraint("DistanceY", 6, 3, 5, 3, Q("1 in")))
sketch11.addConstraint(Sketcher.Constraint("DistanceY", 7, 3, 6, 3, Q("1 in")))
sketch11.addConstraint(Sketcher.Constraint("DistanceX", 0, 2, 4, 3, Q("0.5 in")))
sketch11.addConstraint(Sketcher.Constraint("DistanceY", 4, 3, 0, 2, Q("0.5 in")))
sketch11.addConstraint(Sketcher.Constraint("DistanceX", -1, 1, 4, 3, Q("742.392 mm")))
sketch11.addConstraint(Sketcher.Constraint("DistanceY", 4, 3, -1, 1, Q("111.9 mm")))
pad6 = doc.addObject("PartDesign::Pad", "Pad005")
body6.addObject(pad6)
pad6.Profile = sketch11
pad6.Length = Q("0.25 in")
pad6.Reversed = True
body.Visibility = False
body3.Visibility = False
body4.Visibility = False
body5.Visibility = False
body6.Visibility = False

doc.recompute()
